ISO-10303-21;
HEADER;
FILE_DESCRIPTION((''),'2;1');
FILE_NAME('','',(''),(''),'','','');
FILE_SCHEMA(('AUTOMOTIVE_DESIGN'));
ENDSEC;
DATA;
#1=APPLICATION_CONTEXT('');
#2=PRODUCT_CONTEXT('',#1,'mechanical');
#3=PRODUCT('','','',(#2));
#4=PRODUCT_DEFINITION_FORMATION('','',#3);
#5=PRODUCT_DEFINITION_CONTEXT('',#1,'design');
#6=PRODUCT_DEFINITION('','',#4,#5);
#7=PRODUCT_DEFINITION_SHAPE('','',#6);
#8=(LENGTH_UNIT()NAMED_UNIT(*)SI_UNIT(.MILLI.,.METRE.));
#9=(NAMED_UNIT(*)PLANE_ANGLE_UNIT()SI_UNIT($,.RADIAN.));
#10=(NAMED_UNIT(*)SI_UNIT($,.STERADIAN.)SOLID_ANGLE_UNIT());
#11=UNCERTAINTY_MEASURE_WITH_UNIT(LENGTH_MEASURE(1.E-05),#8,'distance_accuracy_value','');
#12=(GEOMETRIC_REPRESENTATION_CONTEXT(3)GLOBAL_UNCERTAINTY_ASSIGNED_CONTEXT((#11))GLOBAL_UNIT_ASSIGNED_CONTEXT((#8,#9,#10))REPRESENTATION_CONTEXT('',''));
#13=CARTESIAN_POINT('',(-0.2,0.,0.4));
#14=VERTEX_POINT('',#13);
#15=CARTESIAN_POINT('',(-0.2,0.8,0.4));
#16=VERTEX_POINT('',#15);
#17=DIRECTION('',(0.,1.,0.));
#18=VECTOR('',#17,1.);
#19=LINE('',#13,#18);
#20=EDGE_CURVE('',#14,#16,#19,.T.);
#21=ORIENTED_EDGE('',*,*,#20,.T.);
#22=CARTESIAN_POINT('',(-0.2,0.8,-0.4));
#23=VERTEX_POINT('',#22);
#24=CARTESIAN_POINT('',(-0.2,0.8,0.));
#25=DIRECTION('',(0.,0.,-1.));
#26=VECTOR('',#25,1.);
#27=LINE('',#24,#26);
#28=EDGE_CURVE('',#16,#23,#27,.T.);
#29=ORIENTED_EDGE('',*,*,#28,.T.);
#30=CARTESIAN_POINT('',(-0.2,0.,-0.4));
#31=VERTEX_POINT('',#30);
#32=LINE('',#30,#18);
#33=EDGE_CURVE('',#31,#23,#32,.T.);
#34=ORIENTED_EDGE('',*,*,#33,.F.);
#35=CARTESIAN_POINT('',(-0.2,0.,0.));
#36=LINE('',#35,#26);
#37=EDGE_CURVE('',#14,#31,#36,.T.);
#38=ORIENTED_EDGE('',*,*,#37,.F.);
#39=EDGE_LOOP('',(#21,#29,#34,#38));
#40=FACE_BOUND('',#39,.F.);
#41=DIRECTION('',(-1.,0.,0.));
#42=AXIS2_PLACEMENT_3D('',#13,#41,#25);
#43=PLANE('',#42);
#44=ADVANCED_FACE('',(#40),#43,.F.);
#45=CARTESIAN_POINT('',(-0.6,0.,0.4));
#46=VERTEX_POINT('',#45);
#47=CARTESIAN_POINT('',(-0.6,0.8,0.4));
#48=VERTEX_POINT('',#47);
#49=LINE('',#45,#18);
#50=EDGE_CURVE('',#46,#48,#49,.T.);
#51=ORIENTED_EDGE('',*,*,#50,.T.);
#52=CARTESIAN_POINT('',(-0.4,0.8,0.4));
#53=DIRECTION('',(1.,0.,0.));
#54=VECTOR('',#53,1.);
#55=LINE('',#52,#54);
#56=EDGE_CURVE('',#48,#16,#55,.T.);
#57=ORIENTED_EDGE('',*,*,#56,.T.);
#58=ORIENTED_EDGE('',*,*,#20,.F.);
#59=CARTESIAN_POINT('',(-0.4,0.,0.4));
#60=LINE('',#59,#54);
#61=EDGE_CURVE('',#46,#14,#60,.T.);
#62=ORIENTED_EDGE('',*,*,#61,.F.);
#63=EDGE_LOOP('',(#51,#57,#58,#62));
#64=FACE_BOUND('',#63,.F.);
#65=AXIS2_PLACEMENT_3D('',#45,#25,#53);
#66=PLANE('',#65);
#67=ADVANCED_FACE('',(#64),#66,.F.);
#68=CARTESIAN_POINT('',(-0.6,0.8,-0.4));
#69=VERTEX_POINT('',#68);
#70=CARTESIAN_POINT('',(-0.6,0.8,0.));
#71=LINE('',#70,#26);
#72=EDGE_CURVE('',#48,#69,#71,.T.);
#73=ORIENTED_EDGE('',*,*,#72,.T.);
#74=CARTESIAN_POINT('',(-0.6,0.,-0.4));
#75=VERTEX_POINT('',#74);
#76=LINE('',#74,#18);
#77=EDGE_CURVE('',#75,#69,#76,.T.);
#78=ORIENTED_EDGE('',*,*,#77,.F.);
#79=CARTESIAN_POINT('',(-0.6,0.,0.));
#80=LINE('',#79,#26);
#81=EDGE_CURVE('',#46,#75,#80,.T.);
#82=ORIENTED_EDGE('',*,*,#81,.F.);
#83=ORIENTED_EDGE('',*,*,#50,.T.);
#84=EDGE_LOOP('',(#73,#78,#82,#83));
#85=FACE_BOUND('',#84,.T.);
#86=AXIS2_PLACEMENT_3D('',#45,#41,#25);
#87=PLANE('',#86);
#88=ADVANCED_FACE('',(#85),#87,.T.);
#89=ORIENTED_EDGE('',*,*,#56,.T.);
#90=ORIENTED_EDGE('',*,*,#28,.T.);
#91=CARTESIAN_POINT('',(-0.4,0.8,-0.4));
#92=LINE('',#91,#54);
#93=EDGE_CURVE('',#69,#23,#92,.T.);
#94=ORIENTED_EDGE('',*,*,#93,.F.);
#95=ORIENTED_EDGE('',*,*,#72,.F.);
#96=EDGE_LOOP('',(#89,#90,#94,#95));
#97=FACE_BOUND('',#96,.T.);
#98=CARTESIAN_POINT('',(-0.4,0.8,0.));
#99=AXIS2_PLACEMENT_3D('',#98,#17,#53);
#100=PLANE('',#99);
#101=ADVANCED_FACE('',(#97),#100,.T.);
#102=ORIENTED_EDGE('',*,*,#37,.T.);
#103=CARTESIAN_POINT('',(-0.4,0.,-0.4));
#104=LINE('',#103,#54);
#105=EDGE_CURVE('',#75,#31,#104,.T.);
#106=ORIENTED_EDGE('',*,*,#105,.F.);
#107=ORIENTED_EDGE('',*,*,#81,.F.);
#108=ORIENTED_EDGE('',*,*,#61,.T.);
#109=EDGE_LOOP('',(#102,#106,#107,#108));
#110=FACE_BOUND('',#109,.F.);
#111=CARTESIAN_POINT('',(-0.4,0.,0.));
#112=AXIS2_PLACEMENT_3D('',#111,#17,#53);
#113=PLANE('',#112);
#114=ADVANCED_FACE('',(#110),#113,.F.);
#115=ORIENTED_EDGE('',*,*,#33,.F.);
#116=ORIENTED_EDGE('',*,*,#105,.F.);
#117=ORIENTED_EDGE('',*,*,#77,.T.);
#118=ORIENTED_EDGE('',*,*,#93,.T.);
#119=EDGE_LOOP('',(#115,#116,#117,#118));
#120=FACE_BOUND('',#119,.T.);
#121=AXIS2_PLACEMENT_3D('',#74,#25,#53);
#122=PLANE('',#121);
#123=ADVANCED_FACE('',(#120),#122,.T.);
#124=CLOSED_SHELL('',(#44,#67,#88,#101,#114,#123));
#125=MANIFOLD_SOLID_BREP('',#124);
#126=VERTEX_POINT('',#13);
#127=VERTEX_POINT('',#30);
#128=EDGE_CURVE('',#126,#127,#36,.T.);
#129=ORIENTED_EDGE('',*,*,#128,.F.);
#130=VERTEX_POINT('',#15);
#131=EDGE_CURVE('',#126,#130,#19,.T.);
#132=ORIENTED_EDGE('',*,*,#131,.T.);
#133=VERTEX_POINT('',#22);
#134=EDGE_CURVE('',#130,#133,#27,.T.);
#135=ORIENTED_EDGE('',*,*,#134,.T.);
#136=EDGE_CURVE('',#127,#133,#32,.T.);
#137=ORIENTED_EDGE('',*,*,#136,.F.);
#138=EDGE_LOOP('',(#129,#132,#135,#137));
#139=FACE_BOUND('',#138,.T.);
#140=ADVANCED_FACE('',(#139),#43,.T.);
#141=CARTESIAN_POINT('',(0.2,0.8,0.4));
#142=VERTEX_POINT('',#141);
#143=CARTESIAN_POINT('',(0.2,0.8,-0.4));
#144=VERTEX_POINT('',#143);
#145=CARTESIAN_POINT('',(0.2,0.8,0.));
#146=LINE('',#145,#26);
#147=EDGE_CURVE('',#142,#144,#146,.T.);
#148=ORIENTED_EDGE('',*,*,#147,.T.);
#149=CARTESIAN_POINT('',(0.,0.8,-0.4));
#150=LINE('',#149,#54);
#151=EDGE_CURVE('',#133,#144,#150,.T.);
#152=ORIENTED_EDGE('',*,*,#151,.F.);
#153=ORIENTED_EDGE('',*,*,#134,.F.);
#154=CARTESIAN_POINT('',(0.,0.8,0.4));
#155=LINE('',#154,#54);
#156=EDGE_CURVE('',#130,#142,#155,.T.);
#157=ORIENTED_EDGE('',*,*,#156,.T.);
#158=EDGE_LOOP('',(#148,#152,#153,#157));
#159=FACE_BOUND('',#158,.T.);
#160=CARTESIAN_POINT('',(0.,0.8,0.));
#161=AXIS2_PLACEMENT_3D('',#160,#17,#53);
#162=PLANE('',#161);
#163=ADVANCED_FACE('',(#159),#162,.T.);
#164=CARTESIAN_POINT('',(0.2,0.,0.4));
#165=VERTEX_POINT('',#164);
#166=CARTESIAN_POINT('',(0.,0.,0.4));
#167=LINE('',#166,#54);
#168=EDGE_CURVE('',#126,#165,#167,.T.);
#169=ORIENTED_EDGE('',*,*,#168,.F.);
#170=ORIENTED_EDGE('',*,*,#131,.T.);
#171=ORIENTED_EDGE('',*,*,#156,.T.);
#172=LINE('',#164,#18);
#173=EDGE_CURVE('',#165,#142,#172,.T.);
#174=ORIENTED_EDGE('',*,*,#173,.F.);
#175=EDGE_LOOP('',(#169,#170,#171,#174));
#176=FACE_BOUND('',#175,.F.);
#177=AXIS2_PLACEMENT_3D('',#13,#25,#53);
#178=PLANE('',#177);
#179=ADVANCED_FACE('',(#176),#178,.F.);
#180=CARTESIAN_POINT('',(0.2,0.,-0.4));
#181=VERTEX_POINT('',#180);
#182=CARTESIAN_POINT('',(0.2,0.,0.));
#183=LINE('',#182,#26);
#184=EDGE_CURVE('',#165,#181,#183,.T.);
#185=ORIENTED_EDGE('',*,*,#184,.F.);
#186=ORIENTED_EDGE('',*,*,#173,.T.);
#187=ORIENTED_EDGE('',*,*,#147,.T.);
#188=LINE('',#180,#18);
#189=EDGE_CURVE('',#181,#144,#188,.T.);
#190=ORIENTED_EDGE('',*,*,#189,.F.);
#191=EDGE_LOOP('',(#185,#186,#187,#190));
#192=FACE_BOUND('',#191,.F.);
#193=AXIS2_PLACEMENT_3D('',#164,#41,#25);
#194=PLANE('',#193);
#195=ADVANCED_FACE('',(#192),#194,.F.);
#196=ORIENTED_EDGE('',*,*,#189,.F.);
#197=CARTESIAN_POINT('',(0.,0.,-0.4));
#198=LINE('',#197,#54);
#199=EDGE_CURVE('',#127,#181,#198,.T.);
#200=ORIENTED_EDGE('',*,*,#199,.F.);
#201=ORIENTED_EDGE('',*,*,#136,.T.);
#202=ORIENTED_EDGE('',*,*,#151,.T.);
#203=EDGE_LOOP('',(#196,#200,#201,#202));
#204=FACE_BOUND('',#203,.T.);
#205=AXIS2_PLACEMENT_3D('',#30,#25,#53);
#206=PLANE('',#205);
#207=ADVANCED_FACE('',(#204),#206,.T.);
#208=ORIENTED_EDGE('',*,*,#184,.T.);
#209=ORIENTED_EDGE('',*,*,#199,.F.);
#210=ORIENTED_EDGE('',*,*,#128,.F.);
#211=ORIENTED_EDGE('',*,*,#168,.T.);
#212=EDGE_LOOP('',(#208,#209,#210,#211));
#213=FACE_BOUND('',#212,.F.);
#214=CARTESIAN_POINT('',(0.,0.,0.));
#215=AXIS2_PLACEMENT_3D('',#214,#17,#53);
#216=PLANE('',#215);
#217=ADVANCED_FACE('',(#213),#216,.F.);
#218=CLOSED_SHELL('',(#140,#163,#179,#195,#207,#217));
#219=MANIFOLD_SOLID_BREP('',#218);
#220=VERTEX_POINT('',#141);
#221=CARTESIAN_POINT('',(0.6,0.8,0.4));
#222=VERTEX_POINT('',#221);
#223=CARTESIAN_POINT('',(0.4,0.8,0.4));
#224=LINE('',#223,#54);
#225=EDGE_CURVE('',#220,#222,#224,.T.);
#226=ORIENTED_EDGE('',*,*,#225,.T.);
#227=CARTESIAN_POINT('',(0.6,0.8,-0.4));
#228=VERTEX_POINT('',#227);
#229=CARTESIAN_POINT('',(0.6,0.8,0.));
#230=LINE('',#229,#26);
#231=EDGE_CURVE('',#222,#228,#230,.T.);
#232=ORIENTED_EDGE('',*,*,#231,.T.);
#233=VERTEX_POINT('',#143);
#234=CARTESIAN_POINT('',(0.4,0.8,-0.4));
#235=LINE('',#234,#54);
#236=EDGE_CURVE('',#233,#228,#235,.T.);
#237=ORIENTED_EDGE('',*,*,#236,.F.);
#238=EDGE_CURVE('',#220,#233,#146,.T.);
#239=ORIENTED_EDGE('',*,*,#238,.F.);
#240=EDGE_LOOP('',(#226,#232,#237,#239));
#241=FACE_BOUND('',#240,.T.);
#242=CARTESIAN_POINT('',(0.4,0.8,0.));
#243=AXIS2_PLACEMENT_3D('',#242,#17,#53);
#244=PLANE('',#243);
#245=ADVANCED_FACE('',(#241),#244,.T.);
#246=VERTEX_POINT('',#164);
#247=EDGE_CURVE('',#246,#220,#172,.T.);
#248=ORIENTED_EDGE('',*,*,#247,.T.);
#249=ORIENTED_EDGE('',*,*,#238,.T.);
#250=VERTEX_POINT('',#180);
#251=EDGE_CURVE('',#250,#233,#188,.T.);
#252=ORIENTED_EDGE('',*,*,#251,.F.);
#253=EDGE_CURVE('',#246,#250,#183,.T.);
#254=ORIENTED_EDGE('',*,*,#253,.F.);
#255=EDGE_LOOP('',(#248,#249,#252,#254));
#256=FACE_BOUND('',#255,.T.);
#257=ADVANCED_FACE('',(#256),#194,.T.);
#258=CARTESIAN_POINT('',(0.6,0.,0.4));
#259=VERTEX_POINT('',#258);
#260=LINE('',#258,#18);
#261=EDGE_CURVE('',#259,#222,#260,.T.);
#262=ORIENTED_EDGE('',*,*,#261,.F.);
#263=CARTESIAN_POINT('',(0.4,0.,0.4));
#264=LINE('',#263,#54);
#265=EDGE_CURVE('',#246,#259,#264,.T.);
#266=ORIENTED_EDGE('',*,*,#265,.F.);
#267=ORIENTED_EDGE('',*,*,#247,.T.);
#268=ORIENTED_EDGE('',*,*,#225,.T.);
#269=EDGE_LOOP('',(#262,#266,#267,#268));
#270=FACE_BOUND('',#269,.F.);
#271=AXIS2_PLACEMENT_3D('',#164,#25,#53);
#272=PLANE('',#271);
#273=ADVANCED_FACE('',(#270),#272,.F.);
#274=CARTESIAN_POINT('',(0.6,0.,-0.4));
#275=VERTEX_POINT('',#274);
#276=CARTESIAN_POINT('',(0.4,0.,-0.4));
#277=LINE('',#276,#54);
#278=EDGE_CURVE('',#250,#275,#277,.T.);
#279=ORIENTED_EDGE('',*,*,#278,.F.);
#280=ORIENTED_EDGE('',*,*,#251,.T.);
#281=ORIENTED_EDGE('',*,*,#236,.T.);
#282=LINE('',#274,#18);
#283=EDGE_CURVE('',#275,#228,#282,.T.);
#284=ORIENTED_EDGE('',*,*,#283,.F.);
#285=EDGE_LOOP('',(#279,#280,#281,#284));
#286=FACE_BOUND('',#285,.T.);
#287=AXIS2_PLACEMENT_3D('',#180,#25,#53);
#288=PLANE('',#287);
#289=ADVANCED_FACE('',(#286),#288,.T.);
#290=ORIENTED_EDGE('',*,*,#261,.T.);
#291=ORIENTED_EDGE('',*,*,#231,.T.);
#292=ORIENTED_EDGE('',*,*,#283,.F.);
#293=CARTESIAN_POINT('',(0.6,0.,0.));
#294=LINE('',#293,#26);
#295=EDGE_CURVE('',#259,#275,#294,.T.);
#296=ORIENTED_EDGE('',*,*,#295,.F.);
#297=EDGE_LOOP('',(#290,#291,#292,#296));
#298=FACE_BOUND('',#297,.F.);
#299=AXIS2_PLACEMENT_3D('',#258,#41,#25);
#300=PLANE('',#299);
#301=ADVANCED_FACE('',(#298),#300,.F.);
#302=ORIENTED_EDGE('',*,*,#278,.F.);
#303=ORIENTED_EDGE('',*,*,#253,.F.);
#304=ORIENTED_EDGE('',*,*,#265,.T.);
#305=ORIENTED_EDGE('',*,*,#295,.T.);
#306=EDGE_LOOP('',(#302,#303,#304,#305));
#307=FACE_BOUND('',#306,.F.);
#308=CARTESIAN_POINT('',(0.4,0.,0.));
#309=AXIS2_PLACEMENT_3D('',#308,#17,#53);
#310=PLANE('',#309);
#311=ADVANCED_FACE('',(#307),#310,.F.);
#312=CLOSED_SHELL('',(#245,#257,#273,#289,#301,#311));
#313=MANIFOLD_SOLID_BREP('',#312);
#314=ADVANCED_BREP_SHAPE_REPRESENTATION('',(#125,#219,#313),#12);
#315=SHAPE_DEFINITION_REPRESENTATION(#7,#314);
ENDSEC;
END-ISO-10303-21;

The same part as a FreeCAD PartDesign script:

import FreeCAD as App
import Part
import Sketcher
from FreeCAD import Vector


def add_polygon(sketch, points):
    """Adds a closed chain of lines whose ends are joined by coincident constraints."""
    first, n = sketch.GeometryCount, len(points)
    for a, b in zip(points, points[1:] + points[:1]):
        sketch.addGeometry(Part.LineSegment(App.Vector(*a, 0), App.Vector(*b, 0)), False)
    for i in range(n):
        sketch.addConstraint(Sketcher.Constraint("Coincident", first + i, 2, first + (i + 1) % n, 1))

doc = App.newDocument("Part")
params = doc.addObject("Spreadsheet::Sheet", "Params")
for row, (alias, value) in enumerate([
    ("sketch1_width", "0.4 mm"),
    ("sketch1_height", "0.8 mm"),
    ("pad1_length", "0.8 mm"),
    ("sketch2_width", "0.4 mm"),
    ("sketch2_height", "0.8 mm"),
    ("pad2_length", "0.8 mm"),
    ("sketch3_width", "0.4 mm"),
    ("sketch3_height", "0.8 mm"),
    ("pad3_length", "0.8 mm"),
], start=1):
    params.set(f"A{row}", alias)
    params.set(f"B{row}", "=" + value)
    params.setAlias(f"B{row}", alias)

body = doc.addObject("PartDesign::Body", "Body")

sketch1 = doc.addObject("Sketcher::SketchObject", "Sketch")
body.addObject(sketch1)
sketch1.AttachmentSupport = (doc.XZ_Plane, [""])
sketch1.MapMode = "FlatFace"
add_polygon(sketch1, [(-0.2, -0.4), (-0.2, 0.4), (0.2, 0.4), (0.2, -0.4)])
sketch1.addConstraint(Sketcher.Constraint("Vertical", 0))
sketch1.addConstraint(Sketcher.Constraint("Horizontal", 1))
sketch1.addConstraint(Sketcher.Constraint("Vertical", 2))
sketch1.addConstraint(Sketcher.Constraint("Horizontal", 3))
sketch1.addConstraint(Sketcher.Constraint("Symmetric", 0, 2, 2, 2, -1, 1))
sketch1.addConstraint(Sketcher.Constraint("DistanceX", 1, 1, 1, 2, 0.4))
sketch1.addConstraint(Sketcher.Constraint("DistanceY", 0, 1, 0, 2, 0.8))
sketch1.setExpression("Constraints[9]", "Params.sketch1_width")
sketch1.setExpression("Constraints[10]", "Params.sketch1_height")
pad1 = doc.addObject("PartDesign::Pad", "Pad")
body.addObject(pad1)
pad1.Profile = sketch1
pad1.setExpression("Length", "Params.pad1_length")
pad1.Reversed = True
body2 = doc.addObject("PartDesign::Body", "Body001")

sketch2 = doc.addObject("Sketcher::SketchObject", "Sketch001")
body2.addObject(sketch2)
sketch2.AttachmentSupport = (doc.getObject("XZ_Plane001"), [""])
sketch2.MapMode = "FlatFace"
add_polygon(sketch2, [(-0.6, -0.4), (-0.6, 0.4), (-0.2, 0.4), (-0.2, -0.4)])
sketch2.addConstraint(Sketcher.Constraint("Vertical", 0))
sketch2.addConstraint(Sketcher.Constraint("Horizontal", 1))
sketch2.addConstraint(Sketcher.Constraint("Vertical", 2))
sketch2.addConstraint(Sketcher.Constraint("Horizontal", 3))
sketch2.addConstraint(Sketcher.Constraint("DistanceX", 1, 1, 1, 2, 0.4))
sketch2.addConstraint(Sketcher.Constraint("DistanceY", 0, 1, 0, 2, 0.8))
sketch2.addConstraint(Sketcher.Constraint("DistanceX", 0, 2, -1, 1, 0.6))
sketch2.addConstraint(Sketcher.Constraint("DistanceY", -1, 1, 0, 2, 0.4))
sketch2.setExpression("Constraints[8]", "Params.sketch2_width")
sketch2.setExpression("Constraints[9]", "Params.sketch2_height")
pad2 = doc.addObject("PartDesign::Pad", "Pad001")
body2.addObject(pad2)
pad2.Profile = sketch2
pad2.setExpression("Length", "Params.pad2_length")
pad2.Reversed = True
body3 = doc.addObject("PartDesign::Body", "Body002")

sketch3 = doc.addObject("Sketcher::SketchObject", "Sketch002")
body3.addObject(sketch3)
sketch3.AttachmentSupport = (doc.getObject("XZ_Plane002"), [""])
sketch3.MapMode = "FlatFace"
add_polygon(sketch3, [(0.2, -0.4), (0.2, 0.4), (0.6, 0.4), (0.6, -0.4)])
sketch3.addConstraint(Sketcher.Constraint("Vertical", 0))
sketch3.addConstraint(Sketcher.Constraint("Horizontal", 1))
sketch3.addConstraint(Sketcher.Constraint("Vertical", 2))
sketch3.addConstraint(Sketcher.Constraint("Horizontal", 3))
sketch3.addConstraint(Sketcher.Constraint("DistanceX", 1, 1, 1, 2, 0.4))
sketch3.addConstraint(Sketcher.Constraint("DistanceY", 0, 1, 0, 2, 0.8))
sketch3.addConstraint(Sketcher.Constraint("DistanceX", -1, 1, 0, 2, 0.2))
sketch3.addConstraint(Sketcher.Constraint("DistanceY", -1, 1, 0, 2, 0.4))
sketch3.setExpression("Constraints[8]", "Params.sketch3_width")
sketch3.setExpression("Constraints[9]", "Params.sketch3_height")
pad3 = doc.addObject("PartDesign::Pad", "Pad002")
body3.addObject(pad3)
pad3.Profile = sketch3
pad3.setExpression("Length", "Params.pad3_length")
pad3.Reversed = True

doc.recompute()
